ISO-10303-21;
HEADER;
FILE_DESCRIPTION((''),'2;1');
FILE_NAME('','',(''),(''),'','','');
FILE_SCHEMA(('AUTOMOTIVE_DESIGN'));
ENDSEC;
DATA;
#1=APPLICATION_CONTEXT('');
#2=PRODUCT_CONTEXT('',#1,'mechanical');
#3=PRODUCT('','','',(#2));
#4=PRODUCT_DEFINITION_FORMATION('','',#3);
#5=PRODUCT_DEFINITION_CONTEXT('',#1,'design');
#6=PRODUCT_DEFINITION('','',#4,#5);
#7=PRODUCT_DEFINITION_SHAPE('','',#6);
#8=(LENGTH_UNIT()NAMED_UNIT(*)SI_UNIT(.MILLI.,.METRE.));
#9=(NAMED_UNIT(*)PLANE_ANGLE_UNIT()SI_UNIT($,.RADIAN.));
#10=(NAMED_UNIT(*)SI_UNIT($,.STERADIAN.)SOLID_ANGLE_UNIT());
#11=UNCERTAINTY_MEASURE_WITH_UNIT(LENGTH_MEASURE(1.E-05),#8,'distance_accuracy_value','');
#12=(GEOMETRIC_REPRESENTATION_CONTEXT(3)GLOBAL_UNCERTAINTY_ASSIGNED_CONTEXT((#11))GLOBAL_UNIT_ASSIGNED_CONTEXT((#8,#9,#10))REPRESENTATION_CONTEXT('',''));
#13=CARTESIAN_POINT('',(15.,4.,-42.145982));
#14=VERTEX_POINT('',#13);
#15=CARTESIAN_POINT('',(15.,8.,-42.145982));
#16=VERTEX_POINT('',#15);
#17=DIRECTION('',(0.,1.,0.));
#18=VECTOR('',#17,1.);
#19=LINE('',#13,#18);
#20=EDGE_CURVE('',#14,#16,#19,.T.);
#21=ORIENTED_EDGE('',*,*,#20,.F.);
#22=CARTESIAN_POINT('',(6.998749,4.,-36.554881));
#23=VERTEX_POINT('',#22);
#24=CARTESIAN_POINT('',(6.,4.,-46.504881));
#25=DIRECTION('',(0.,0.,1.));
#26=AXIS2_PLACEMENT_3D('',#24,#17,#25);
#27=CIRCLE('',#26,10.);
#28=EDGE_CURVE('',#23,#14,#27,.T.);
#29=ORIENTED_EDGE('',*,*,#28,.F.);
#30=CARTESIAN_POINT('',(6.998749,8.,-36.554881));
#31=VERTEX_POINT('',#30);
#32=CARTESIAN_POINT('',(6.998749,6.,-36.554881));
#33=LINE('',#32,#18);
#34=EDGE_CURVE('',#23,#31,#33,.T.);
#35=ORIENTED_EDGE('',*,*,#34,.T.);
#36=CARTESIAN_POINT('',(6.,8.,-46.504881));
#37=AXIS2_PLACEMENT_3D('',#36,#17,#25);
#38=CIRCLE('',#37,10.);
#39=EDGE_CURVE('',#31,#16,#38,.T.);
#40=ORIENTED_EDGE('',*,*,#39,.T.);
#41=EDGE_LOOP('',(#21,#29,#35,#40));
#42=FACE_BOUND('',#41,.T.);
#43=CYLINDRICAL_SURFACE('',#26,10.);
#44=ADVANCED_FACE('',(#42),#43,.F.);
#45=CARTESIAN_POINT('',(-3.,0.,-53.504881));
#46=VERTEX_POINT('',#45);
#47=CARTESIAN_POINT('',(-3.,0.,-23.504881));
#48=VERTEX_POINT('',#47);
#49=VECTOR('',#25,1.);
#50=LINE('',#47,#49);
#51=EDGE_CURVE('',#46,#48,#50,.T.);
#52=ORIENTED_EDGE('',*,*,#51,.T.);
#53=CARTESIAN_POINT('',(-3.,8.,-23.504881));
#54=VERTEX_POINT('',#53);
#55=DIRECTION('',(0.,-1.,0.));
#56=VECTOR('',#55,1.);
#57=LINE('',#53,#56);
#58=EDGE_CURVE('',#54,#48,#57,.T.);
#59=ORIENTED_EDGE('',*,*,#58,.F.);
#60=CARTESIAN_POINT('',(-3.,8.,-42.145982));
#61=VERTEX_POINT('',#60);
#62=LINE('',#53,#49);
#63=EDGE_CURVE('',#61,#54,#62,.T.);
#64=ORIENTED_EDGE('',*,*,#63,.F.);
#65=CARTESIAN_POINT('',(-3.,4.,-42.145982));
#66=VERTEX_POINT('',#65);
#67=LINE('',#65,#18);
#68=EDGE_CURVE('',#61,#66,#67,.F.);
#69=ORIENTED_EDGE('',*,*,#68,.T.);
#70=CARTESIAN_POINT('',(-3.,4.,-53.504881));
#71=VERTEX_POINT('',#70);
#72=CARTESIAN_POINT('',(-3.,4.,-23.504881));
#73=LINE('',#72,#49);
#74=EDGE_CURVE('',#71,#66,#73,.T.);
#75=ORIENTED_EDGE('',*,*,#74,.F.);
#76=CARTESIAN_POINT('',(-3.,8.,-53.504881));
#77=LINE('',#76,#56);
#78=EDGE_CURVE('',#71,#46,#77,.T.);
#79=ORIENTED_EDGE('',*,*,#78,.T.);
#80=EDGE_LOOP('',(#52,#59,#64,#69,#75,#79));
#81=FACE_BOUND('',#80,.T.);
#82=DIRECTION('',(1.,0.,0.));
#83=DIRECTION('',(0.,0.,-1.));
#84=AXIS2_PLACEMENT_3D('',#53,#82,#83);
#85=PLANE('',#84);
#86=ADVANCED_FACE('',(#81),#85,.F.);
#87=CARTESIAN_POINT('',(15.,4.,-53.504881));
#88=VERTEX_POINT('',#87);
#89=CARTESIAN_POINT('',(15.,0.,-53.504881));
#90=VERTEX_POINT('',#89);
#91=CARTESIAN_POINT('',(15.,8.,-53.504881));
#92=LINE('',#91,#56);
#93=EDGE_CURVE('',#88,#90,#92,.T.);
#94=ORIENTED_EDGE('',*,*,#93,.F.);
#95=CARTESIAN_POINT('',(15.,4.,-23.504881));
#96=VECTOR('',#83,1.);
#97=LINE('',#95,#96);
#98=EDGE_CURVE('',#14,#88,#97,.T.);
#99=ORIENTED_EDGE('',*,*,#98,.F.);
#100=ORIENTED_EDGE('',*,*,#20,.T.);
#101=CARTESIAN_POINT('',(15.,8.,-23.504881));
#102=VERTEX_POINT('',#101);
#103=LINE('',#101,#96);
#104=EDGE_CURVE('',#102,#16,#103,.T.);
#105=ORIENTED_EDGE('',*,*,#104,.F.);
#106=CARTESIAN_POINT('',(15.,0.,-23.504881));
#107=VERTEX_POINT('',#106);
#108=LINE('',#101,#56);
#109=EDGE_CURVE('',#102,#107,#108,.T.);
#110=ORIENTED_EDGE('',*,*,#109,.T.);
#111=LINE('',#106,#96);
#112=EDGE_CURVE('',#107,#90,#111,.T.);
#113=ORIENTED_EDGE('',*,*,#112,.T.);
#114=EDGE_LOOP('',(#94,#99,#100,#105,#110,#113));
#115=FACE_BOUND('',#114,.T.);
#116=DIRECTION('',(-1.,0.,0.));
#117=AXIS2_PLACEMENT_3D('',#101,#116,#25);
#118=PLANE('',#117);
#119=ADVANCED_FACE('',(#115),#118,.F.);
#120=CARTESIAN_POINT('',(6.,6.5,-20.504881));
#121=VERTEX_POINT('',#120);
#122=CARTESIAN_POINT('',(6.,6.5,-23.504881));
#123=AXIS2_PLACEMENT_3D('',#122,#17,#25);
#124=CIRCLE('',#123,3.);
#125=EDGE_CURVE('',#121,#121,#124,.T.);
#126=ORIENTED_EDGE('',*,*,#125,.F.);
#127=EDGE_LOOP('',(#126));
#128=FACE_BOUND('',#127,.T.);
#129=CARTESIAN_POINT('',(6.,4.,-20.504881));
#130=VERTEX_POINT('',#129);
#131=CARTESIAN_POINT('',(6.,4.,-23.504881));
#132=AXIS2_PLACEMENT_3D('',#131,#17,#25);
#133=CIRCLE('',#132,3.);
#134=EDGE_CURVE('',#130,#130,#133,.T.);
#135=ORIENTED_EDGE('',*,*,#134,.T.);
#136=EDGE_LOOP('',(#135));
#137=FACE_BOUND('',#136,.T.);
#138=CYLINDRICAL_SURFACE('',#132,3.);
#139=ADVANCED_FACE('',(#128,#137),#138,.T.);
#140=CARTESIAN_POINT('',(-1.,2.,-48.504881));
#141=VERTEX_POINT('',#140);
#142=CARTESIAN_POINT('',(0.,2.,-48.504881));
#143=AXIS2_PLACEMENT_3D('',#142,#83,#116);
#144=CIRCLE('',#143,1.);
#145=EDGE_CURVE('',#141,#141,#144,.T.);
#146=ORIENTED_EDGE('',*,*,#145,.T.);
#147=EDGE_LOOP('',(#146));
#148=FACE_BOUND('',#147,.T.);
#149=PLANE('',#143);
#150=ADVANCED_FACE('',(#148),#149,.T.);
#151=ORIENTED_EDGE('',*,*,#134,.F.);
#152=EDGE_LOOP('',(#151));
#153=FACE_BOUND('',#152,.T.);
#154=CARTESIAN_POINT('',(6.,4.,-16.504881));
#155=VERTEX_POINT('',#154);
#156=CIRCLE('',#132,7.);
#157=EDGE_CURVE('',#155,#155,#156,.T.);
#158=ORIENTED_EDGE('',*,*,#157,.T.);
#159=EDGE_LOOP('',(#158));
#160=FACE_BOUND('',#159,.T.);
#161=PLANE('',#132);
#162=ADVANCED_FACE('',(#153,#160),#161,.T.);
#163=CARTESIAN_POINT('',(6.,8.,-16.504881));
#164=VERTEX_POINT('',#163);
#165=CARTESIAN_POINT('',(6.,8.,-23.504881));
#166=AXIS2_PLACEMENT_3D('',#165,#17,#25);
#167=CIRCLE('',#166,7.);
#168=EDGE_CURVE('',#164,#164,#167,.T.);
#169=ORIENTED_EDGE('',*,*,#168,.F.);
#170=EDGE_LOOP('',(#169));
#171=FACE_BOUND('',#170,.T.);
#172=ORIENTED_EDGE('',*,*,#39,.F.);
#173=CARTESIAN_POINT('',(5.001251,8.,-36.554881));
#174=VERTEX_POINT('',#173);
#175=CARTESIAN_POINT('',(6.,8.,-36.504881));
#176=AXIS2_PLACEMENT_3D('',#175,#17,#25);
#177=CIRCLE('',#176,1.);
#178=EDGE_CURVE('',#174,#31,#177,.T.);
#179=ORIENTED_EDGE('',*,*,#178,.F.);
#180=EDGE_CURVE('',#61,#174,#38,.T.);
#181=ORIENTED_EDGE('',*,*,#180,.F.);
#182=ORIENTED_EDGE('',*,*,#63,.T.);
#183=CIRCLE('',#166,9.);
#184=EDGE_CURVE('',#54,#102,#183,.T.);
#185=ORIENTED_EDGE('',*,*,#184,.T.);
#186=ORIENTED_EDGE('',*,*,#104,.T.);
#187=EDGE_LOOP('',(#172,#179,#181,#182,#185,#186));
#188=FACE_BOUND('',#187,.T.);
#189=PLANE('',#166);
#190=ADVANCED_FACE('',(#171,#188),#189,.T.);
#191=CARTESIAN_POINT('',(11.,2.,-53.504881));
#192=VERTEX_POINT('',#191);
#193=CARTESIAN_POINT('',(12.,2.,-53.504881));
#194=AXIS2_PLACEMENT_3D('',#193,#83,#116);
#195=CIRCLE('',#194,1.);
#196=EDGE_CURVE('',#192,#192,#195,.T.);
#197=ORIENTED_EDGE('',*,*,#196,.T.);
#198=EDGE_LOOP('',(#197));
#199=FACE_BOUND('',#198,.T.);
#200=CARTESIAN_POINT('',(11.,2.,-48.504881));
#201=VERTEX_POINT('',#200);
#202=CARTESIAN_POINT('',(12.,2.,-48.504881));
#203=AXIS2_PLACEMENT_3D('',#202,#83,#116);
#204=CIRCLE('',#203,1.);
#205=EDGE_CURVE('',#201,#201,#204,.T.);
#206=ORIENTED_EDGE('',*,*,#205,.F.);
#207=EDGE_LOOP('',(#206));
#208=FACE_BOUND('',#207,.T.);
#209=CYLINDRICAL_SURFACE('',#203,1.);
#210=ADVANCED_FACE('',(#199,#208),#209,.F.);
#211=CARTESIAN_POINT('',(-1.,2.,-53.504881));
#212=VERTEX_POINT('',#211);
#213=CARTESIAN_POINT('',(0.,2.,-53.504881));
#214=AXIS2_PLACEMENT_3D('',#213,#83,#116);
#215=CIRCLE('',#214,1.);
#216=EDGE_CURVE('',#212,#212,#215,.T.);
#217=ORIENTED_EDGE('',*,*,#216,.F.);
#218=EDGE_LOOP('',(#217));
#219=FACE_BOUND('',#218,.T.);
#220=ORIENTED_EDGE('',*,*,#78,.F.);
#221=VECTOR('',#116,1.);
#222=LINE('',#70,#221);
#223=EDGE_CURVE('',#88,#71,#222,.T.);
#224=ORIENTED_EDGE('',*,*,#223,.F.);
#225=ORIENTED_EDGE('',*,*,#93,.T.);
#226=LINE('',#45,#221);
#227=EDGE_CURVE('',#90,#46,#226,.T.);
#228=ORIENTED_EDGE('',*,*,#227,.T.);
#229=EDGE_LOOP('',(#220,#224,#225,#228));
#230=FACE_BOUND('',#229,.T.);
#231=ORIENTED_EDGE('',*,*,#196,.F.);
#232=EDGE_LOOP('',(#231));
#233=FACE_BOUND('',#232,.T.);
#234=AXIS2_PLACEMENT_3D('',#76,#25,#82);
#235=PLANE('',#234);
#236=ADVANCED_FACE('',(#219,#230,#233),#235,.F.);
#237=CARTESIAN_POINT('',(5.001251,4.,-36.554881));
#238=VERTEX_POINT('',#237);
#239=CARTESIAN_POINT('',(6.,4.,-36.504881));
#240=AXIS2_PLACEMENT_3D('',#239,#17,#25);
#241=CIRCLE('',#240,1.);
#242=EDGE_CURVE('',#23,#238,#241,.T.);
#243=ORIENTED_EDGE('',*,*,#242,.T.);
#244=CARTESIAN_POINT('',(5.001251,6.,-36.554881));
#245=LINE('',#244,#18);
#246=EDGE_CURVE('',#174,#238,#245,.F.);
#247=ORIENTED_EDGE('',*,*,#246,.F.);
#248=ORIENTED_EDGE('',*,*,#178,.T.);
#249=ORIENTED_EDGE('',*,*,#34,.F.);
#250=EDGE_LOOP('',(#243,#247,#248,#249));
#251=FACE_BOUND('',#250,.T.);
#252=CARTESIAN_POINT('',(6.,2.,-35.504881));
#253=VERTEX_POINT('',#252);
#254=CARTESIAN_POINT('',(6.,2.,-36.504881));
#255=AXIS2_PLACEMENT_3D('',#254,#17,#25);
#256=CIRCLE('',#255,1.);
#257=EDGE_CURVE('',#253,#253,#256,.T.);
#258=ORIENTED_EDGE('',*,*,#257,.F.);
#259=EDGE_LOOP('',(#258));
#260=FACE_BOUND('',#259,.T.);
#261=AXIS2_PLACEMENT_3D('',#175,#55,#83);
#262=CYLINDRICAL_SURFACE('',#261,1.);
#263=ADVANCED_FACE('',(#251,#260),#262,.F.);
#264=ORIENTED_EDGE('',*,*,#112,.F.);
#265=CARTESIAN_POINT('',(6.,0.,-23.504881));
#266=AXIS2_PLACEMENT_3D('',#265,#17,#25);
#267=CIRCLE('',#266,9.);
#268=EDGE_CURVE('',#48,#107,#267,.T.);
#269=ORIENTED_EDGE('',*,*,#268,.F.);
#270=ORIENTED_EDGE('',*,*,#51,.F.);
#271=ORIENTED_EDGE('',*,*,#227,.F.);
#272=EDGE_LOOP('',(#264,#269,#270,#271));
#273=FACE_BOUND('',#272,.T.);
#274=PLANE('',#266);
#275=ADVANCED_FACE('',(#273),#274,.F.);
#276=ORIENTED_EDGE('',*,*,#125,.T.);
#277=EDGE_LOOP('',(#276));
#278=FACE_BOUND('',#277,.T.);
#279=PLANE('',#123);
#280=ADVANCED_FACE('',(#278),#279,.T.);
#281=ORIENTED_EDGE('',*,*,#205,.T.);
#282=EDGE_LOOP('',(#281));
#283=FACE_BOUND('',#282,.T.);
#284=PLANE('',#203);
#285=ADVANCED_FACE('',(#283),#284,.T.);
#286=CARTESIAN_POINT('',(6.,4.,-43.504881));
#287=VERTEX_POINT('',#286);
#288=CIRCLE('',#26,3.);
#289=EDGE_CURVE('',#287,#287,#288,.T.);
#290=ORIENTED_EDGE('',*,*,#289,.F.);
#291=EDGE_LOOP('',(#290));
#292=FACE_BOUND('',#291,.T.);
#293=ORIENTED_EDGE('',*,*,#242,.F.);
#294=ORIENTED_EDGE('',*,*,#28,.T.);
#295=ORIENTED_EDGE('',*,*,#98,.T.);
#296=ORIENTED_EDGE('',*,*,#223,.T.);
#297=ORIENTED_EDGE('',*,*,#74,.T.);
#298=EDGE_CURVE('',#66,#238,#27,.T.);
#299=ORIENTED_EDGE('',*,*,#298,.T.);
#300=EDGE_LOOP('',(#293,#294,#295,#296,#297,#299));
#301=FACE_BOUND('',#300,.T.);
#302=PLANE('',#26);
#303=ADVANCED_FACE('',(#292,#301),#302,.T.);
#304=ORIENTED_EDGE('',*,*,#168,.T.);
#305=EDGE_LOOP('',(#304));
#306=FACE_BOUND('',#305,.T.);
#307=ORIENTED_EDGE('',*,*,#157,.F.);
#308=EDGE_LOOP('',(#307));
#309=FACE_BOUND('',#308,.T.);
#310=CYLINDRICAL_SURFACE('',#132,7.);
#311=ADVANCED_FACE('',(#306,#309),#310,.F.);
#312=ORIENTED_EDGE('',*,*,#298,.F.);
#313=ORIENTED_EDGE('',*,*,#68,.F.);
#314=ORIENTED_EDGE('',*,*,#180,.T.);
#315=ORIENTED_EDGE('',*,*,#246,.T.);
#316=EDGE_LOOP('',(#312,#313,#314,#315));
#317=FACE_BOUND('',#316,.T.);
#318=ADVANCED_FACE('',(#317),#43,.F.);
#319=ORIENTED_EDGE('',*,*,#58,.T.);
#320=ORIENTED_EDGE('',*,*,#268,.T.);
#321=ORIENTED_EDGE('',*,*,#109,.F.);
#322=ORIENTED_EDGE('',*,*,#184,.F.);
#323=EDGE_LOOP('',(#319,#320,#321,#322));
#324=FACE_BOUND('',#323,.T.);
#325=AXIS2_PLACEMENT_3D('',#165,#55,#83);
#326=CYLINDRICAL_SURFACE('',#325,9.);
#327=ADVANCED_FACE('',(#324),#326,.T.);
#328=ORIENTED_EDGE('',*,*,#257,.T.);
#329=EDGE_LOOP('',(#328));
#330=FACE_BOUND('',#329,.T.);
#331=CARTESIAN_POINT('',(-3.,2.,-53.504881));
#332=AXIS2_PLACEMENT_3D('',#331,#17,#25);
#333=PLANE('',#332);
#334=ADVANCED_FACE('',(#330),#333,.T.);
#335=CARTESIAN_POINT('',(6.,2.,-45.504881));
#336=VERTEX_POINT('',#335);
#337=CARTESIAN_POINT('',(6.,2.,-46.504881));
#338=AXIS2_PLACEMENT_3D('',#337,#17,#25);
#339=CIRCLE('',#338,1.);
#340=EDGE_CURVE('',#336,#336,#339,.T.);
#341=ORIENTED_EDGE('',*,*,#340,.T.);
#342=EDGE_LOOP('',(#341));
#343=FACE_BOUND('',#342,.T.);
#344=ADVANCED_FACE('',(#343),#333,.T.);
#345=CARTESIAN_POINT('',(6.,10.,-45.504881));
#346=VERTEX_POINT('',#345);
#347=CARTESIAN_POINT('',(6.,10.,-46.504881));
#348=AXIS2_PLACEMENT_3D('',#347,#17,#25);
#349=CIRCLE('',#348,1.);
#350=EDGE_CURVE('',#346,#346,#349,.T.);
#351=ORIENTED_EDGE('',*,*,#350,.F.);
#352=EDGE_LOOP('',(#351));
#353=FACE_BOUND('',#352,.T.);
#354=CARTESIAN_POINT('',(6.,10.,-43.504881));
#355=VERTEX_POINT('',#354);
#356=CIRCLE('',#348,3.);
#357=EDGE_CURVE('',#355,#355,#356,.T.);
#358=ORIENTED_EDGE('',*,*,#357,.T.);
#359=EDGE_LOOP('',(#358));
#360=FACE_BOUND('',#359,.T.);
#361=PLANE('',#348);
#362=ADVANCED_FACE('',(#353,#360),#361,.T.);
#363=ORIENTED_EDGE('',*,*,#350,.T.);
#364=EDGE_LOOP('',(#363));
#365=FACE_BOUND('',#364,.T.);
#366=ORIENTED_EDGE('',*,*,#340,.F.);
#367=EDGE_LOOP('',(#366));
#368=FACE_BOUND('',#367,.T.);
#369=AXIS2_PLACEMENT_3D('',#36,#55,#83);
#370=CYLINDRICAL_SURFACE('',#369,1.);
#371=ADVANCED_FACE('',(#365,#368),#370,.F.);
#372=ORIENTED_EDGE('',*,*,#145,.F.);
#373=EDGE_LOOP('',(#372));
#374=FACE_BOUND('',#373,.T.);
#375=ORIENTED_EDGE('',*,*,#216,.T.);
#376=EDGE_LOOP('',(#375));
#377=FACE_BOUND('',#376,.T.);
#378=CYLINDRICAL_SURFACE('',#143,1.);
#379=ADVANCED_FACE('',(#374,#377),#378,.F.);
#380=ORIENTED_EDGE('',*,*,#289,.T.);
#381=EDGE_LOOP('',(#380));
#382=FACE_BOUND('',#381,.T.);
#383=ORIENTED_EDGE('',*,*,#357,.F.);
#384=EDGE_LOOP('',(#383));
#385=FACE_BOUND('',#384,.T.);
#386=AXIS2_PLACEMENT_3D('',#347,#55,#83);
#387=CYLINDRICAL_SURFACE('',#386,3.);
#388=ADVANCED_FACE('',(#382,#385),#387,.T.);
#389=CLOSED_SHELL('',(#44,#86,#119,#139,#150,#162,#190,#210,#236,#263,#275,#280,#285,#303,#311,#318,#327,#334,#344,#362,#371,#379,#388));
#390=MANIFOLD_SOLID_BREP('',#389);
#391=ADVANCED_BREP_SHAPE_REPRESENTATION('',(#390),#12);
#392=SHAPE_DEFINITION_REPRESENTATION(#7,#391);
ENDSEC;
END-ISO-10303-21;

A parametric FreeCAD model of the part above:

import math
import FreeCAD as App
import Part
import Sketcher


def add_polygon(sketch, points):
    """Adds a closed chain of lines whose ends are joined by coincident constraints."""
    first, n = sketch.GeometryCount, len(points)
    for a, b in zip(points, points[1:] + points[:1]):
        sketch.addGeometry(Part.LineSegment(App.Vector(*a, 0), App.Vector(*b, 0)), False)
    for i in range(n):
        sketch.addConstraint(Sketcher.Constraint("Coincident", first + i, 2, first + (i + 1) % n, 1))

doc = App.newDocument("Part")
body = doc.addObject("PartDesign::Body", "Body")

sketch1 = body.newObject("Sketcher::SketchObject", "Sketch")
sketch1.AttachmentSupport = (doc.getObject("XZ_Plane"), [""])
sketch1.MapMode = "FlatFace"
sketch1.addGeometry([
    Part.LineSegment(App.Vector(15, -53.504881, 0), App.Vector(-3, -53.504881, 0)),
    Part.LineSegment(App.Vector(-3, -53.504881, 0), App.Vector(-3, -23.504881, 0)),
    Part.ArcOfCircle(Part.Circle(App.Vector(6, -23.504881, 0), App.Vector(0, 0, 1), 9), math.radians(0), math.radians(180)),
    Part.LineSegment(App.Vector(15, -23.504881, 0), App.Vector(15, -53.504881, 0)),
    Part.Circle(App.Vector(6, -36.504881, 0), App.Vector(0, 0, 1), 1),
    Part.Circle(App.Vector(6, -46.504881, 0), App.Vector(0, 0, 1), 1),
], False)
sketch1.addConstraint([
    Sketcher.Constraint("Coincident", 0, 2, 1, 1),
    Sketcher.Constraint("Tangent", 1, 2, 2, 2),
    Sketcher.Constraint("Tangent", 2, 1, 3, 1),
    Sketcher.Constraint("Coincident", 3, 2, 0, 1),
    Sketcher.Constraint("Horizontal", 0),
    Sketcher.Constraint("Vertical", 1),
    Sketcher.Constraint("Vertical", 3),
    Sketcher.Constraint("Equal", 4, 5),
    Sketcher.Constraint("Vertical", 2, 3, 4, 3),
    Sketcher.Constraint("Vertical", 4, 3, 5, 3),
    Sketcher.Constraint("Diameter", 4, 2.0),
    Sketcher.Constraint("Radius", 2, 9.0),
    Sketcher.Constraint("DistanceY", 1, 1, 1, 2, 30.0),
    Sketcher.Constraint("DistanceX", -1, 1, 2, 3, 6.0),
    Sketcher.Constraint("DistanceY", 4, 3, 2, 3, 13.0),
    Sketcher.Constraint("DistanceY", 5, 3, 4, 3, 10.0),
    Sketcher.Constraint("DistanceY", 2, 3, -1, 1, 23.504881),
])
pad1 = body.newObject("PartDesign::Pad", "Pad")
pad1.Profile = sketch1
pad1.Length = 8
pad1.Reversed = True

sketch2 = body.newObject("Sketcher::SketchObject", "Sketch001")
sketch2.AttachmentSupport = (doc.getObject("XZ_Plane"), [""])
sketch2.MapMode = "FlatFace"
sketch2.AttachmentOffset = App.Placement(App.Vector(0, 0, -8), App.Rotation())
sketch2.addGeometry([
    Part.Circle(App.Vector(6, -23.504881, 0), App.Vector(0, 0, 1), 7),
    Part.Circle(App.Vector(6, -23.504881, 0), App.Vector(0, 0, 1), 3),
], False)
sketch2.addConstraint([
    Sketcher.Constraint("Coincident", 1, 3, 0, 3),
    Sketcher.Constraint("Diameter", 0, 14.0),
    Sketcher.Constraint("Diameter", 1, 6.0),
    Sketcher.Constraint("DistanceX", -1, 1, 0, 3, 6.0),
    Sketcher.Constraint("DistanceY", 0, 3, -1, 1, 23.504881),
])
pocket1 = body.newObject("PartDesign::Pocket", "Pocket")
pocket1.Profile = sketch2
pocket1.Length = 4
pocket1.Reversed = True

sketch3 = body.newObject("Sketcher::SketchObject", "Sketch002")
sketch3.AttachmentSupport = (doc.getObject("XZ_Plane"), [""])
sketch3.MapMode = "FlatFace"
sketch3.AttachmentOffset = App.Placement(App.Vector(0, 0, -8), App.Rotation())
sketch3.addGeometry(Part.Circle(App.Vector(6, -23.504881, 0), App.Vector(0, 0, 1), 3), False)
sketch3.addConstraint([
    Sketcher.Constraint("Diameter", 0, 6.0),
    Sketcher.Constraint("DistanceX", -1, 1, 0, 3, 6.0),
    Sketcher.Constraint("DistanceY", 0, 3, -1, 1, 23.504881),
])
pocket2 = body.newObject("PartDesign::Pocket", "Pocket001")
pocket2.Profile = sketch3
pocket2.Length = 1.5
pocket2.Reversed = True

sketch4 = body.newObject("Sketcher::SketchObject", "Sketch003")
sketch4.AttachmentSupport = (doc.getObject("XZ_Plane"), [""])
sketch4.MapMode = "FlatFace"
sketch4.AttachmentOffset = App.Placement(App.Vector(0, 0, -8), App.Rotation())
sketch4.addGeometry([
    Part.LineSegment(App.Vector(-4, -53.993645, 0), App.Vector(-4, -46.504881, 0)),
    Part.ArcOfCircle(Part.Circle(App.Vector(6, -46.504881, 0), App.Vector(0, 0, 1), 10), math.radians(0), math.radians(180)),
    Part.LineSegment(App.Vector(16, -46.504881, 0), App.Vector(16, -53.993645, 0)),
    Part.LineSegment(App.Vector(16, -53.993645, 0), App.Vector(-4, -53.993645, 0)),
], False)
sketch4.addConstraint([
    Sketcher.Constraint("Tangent", 0, 2, 1, 2),
    Sketcher.Constraint("Tangent", 1, 1, 2, 1),
    Sketcher.Constraint("Coincident", 2, 2, 3, 1),
    Sketcher.Constraint("Coincident", 3, 2, 0, 1),
    Sketcher.Constraint("Vertical", 0),
    Sketcher.Constraint("Vertical", 2),
    Sketcher.Constraint("Horizontal", 3),
    Sketcher.Constraint("Radius", 1, 10.0),
    Sketcher.Constraint("DistanceX", -1, 1, 1, 3, 6.0),
    Sketcher.Constraint("DistanceY", 0, 1, 0, 2, 7.488764),
    Sketcher.Constraint("DistanceY", 1, 3, -1, 1, 46.504881),
])
pocket3 = body.newObject("PartDesign::Pocket", "Pocket002")
pocket3.Profile = sketch4
pocket3.Length = 4
pocket3.Reversed = True

sketch5 = body.newObject("Sketcher::SketchObject", "Sketch004")
sketch5.AttachmentSupport = (doc.getObject("YZ_Plane"), [""])
sketch5.MapMode = "FlatFace"
sketch5.AttachmentOffset = App.Placement(App.Vector(0, 0, 5), App.Rotation())
add_polygon(sketch5, [(2, -23.504881), (0, -23.504881), (0, -53.504881), (2, -53.504881)])
sketch5.addConstraint([
    Sketcher.Constraint("Horizontal", 0),
    Sketcher.Constraint("Vertical", 1),
    Sketcher.Constraint("Horizontal", 2),
    Sketcher.Constraint("Vertical", 3),
    Sketcher.Constraint("PointOnObject", 0, 2, -2),
    Sketcher.Constraint("DistanceX", 0, 2, 0, 1, 2.0),
    Sketcher.Constraint("DistanceY", 1, 2, 1, 1, 30.0),
    Sketcher.Constraint("DistanceY", 0, 2, -1, 1, 23.504881),
])
pad2 = body.newObject("PartDesign::Pad", "Pad001")
pad2.Profile = sketch5
pad2.Length = 2

sketch6 = body.newObject("Sketcher::SketchObject", "Sketch005")
sketch6.AttachmentSupport = (doc.getObject("XZ_Plane"), [""])
sketch6.MapMode = "FlatFace"
sketch6.AttachmentOffset = App.Placement(App.Vector(0, 0, -4), App.Rotation())
sketch6.addGeometry([
    Part.Circle(App.Vector(6, -46.504881, 0), App.Vector(0, 0, 1), 3),
    Part.Circle(App.Vector(6, -46.504881, 0), App.Vector(0, 0, 1), 1),
], False)
sketch6.addConstraint([
    Sketcher.Constraint("Coincident", 1, 3, 0, 3),
    Sketcher.Constraint("Diameter", 0, 6.0),
    Sketcher.Constraint("Diameter", 1, 2.0),
    Sketcher.Constraint("DistanceX", -1, 1, 0, 3, 6.0),
    Sketcher.Constraint("DistanceY", 0, 3, -1, 1, 46.504881),
])
pad3 = body.newObject("PartDesign::Pad", "Pad002")
pad3.Profile = sketch6
pad3.Length = 6
pad3.Reversed = True

sketch7 = body.newObject("Sketcher::SketchObject", "Sketch006")
sketch7.AttachmentSupport = (doc.getObject("XY_Plane"), [""])
sketch7.MapMode = "FlatFace"
sketch7.AttachmentOffset = App.Placement(App.Vector(0, 0, -53.504881), App.Rotation())
sketch7.addGeometry([
    Part.Circle(App.Vector(12, 2, 0), App.Vector(0, 0, 1), 1),
    Part.Circle(App.Vector(0, 2, 0), App.Vector(0, 0, 1), 1),
], False)
sketch7.addConstraint([
    Sketcher.Constraint("Equal", 0, 1),
    Sketcher.Constraint("PointOnObject", 1, 3, -2),
    Sketcher.Constraint("Horizontal", 0, 3, 1, 3),
    Sketcher.Constraint("Diameter", 0, 2.0),
    Sketcher.Constraint("DistanceX", -1, 1, 0, 3, 12.0),
    Sketcher.Constraint("DistanceY", -1, 1, 0, 3, 2.0),
])
pocket4 = body.newObject("PartDesign::Pocket", "Pocket003")
pocket4.Profile = sketch7
pocket4.Length = 5
pocket4.Reversed = True

doc.recompute()
